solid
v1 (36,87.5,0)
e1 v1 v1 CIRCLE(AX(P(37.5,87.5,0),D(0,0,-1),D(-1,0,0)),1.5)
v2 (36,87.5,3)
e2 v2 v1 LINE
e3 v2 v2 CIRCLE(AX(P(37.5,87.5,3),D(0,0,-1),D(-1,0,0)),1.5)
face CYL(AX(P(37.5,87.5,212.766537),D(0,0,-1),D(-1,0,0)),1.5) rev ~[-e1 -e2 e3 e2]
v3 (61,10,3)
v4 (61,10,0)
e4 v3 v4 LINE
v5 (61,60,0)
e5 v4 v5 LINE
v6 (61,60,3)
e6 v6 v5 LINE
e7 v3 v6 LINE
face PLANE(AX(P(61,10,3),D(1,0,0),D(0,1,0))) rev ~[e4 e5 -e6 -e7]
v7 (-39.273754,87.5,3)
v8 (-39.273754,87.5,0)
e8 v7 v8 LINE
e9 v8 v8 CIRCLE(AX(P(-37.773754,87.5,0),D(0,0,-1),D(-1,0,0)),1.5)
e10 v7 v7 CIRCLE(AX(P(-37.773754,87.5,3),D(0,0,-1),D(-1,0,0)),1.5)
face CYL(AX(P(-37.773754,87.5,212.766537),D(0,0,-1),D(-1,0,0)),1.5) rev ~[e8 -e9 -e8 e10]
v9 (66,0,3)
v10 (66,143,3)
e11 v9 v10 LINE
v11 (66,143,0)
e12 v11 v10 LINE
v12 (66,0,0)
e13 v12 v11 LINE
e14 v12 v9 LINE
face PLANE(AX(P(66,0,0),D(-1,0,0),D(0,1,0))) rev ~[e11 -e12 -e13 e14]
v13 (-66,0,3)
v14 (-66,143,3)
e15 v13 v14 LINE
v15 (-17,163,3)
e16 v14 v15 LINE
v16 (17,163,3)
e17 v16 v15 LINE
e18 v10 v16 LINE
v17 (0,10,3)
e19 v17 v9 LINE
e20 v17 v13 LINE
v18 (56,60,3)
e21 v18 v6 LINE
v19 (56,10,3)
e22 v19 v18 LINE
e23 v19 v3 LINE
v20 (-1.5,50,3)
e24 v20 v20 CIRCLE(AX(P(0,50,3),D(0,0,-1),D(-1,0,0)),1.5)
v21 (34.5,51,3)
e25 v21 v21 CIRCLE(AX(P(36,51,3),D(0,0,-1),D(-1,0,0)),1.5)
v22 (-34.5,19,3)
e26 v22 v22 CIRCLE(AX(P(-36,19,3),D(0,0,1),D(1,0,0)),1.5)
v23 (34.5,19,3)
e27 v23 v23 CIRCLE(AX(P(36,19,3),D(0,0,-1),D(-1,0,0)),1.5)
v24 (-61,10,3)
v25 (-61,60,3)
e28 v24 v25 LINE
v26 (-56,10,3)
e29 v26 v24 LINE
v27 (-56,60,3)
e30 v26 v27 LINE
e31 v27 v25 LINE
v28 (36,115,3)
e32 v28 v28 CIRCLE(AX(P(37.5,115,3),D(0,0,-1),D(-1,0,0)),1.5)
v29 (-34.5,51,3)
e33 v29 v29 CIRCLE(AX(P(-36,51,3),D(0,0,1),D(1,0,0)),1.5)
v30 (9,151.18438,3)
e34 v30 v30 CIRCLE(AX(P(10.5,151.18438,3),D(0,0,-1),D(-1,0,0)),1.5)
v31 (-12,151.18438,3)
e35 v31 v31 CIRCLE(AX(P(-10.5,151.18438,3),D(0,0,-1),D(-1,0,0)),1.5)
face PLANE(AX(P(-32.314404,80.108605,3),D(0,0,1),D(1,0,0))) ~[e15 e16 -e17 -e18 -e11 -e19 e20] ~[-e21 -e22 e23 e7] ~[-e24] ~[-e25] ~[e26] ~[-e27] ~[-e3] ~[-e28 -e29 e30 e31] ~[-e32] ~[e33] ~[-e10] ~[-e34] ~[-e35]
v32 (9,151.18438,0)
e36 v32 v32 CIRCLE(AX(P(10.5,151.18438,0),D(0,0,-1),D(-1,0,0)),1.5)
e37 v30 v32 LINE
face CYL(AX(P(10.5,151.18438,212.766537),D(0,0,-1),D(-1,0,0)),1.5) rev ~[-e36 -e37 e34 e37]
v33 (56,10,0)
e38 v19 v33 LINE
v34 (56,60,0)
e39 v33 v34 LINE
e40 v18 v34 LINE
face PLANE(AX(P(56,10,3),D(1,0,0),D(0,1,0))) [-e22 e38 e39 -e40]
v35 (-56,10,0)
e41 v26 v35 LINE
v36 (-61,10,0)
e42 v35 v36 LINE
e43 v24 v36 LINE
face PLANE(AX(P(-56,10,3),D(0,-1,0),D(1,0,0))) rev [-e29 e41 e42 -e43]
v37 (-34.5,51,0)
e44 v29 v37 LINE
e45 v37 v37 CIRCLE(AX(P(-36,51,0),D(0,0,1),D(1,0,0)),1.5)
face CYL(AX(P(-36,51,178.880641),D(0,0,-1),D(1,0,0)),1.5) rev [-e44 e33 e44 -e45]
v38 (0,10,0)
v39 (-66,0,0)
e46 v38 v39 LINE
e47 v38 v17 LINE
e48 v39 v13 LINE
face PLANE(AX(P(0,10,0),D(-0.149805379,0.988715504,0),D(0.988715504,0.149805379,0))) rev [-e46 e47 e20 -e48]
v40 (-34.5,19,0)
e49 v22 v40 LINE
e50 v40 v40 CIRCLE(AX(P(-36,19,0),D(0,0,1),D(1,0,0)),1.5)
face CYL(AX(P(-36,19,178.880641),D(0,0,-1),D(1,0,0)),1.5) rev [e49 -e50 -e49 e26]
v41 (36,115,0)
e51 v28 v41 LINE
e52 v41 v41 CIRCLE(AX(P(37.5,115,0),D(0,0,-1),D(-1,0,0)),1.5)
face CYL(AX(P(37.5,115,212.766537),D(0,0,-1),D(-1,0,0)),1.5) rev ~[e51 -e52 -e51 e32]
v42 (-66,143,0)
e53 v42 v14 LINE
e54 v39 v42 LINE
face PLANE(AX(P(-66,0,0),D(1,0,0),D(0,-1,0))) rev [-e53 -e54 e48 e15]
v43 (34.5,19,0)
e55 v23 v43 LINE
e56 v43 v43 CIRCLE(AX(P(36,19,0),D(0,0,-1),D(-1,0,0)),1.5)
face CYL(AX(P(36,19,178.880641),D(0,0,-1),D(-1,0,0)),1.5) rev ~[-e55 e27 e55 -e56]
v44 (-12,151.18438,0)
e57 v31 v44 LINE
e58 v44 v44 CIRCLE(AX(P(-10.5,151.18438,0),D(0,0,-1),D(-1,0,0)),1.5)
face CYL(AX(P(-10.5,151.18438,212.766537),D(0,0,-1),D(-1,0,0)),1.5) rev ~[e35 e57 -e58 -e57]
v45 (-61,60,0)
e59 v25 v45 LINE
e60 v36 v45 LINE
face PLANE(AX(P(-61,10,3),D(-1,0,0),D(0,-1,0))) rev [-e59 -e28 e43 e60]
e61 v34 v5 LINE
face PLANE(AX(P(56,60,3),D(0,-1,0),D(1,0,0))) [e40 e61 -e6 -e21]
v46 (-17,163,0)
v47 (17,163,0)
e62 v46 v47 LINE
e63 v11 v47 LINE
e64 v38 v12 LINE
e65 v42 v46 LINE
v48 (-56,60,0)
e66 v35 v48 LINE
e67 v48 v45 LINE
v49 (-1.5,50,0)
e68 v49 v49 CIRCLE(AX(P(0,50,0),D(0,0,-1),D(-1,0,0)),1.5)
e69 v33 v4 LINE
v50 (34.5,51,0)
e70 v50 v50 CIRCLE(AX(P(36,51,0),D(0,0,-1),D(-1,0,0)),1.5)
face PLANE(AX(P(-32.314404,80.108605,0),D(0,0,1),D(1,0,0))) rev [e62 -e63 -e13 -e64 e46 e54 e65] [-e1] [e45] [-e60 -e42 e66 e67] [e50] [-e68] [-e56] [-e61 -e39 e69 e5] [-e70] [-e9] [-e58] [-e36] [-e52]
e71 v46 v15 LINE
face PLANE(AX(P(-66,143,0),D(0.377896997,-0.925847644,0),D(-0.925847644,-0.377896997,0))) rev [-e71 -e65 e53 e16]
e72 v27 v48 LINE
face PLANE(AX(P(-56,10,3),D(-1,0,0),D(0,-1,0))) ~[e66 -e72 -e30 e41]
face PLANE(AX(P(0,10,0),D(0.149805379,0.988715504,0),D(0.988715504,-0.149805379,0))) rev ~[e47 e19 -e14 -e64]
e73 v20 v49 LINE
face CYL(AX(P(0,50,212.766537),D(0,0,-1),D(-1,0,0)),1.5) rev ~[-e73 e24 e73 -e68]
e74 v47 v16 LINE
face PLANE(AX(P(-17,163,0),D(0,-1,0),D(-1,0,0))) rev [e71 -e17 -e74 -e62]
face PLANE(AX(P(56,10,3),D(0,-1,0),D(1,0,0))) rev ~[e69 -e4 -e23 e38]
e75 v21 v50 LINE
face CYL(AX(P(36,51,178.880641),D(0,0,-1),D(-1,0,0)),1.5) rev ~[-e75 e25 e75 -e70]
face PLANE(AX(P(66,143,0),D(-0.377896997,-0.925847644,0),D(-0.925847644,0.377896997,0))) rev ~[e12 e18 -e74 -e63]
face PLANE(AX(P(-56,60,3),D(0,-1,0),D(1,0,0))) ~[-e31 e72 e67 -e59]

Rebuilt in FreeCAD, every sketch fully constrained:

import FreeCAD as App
import Part
import Sketcher
from FreeCAD import Vector
Q = App.Units.Quantity


def add_polygon(sketch, points):
    """Adds a closed chain of lines whose ends are joined by coincident constraints."""
    first, n = sketch.GeometryCount, len(points)
    for a, b in zip(points, points[1:] + points[:1]):
        sketch.addGeometry(Part.LineSegment(App.Vector(*a, 0), App.Vector(*b, 0)), False)
    for i in range(n):
        sketch.addConstraint(Sketcher.Constraint("Coincident", first + i, 2, first + (i + 1) % n, 1))

doc = App.newDocument("Part")
body = doc.addObject("PartDesign::Body", "Body")

sketch1 = body.newObject("Sketcher::SketchObject", "Sketch")
sketch1.AttachmentSupport = (doc.getObject("XY_Plane"), [""])
sketch1.MapMode = "FlatFace"
add_polygon(sketch1, [(0, 10), (66, 0), (66, 143), (17, 163), (0, 163)])
sketch1.addConstraint(Sketcher.Constraint("Vertical", 1))
sketch1.addConstraint(Sketcher.Constraint("Horizontal", 3))
sketch1.addConstraint(Sketcher.Constraint("Vertical", 4))
sketch1.addConstraint(Sketcher.Constraint("PointOnObject", 0, 2, -1))
sketch1.addConstraint(Sketcher.Constraint("PointOnObject", 3, 2, -2))
sketch1.addConstraint(Sketcher.Constraint("DistanceX", 3, 2, 3, 1, Q("17 mm")))
sketch1.addConstraint(Sketcher.Constraint("DistanceY", 1, 1, 1, 2, Q("143 mm")))
sketch1.addConstraint(Sketcher.Constraint("DistanceY", 4, 2, 4, 1, Q("153 mm")))
sketch1.addConstraint(Sketcher.Constraint("DistanceX", -1, 1, 0, 2, Q("66 mm")))
sketch1.addConstraint(Sketcher.Constraint("DistanceY", -1, 1, 2, 2, Q("163 mm")))
pad1 = body.newObject("PartDesign::Pad", "Pad")
pad1.Profile = sketch1
pad1.Length = 3

sketch2 = body.newObject("Sketcher::SketchObject", "Sketch001")
sketch2.AttachmentSupport = (doc.getObject("XY_Plane"), [""])
sketch2.MapMode = "FlatFace"
sketch2.AttachmentOffset = App.Placement(Vector(0, 0, 3), App.Rotation())
add_polygon(sketch2, [(56, 60), (56, 10), (61, 10), (61, 60)])
sketch2.addConstraint(Sketcher.Constraint("Vertical", 0))
sketch2.addConstraint(Sketcher.Constraint("Horizontal", 1))
sketch2.addConstraint(Sketcher.Constraint("Vertical", 2))
sketch2.addConstraint(Sketcher.Constraint("Horizontal", 3))
sketch2.addConstraint(Sketcher.Constraint("DistanceX", 1, 1, 1, 2, Q("5 mm")))
sketch2.addConstraint(Sketcher.Constraint("DistanceY", 0, 2, 0, 1, Q("50 mm")))
sketch2.addConstraint(Sketcher.Constraint("DistanceX", -1, 1, 0, 2, Q("56 mm")))
sketch2.addConstraint(Sketcher.Constraint("DistanceY", -1, 1, 0, 2, Q("10 mm")))
pocket1 = body.newObject("PartDesign::Pocket", "Pocket")
pocket1.Profile = sketch2
pocket1.Length = 3

sketch3 = body.newObject("Sketcher::SketchObject", "Sketch002")
sketch3.AttachmentSupport = (doc.getObject("XY_Plane"), [""])
sketch3.MapMode = "FlatFace"
sketch3.AttachmentOffset = App.Placement(Vector(0, 0, 3), App.Rotation())
sketch3.addGeometry(Part.Circle(Vector(36, 19, 0), Vector(0, 0, 1), 1.5), False)
sketch3.addGeometry(Part.Circle(Vector(36, 51, 0), Vector(0, 0, 1), 1.5), False)
sketch3.addConstraint(Sketcher.Constraint("Equal", 0, 1))
sketch3.addConstraint(Sketcher.Constraint("Vertical", 0, 3, 1, 3))
sketch3.addConstraint(Sketcher.Constraint("Diameter", 0, Q("3 mm")))
sketch3.addConstraint(Sketcher.Constraint("DistanceX", -1, 1, 0, 3, Q("36 mm")))
sketch3.addConstraint(Sketcher.Constraint("DistanceY", -1, 1, 0, 3, Q("19 mm")))
sketch3.addConstraint(Sketcher.Constraint("DistanceY", -1, 1, 1, 3, Q("51 mm")))
doc.recompute()
hole = body.newObject("PartDesign::Hole", "Hole")
hole.Profile = sketch3
hole.ThreadType = "None"
hole.Diameter = 3
hole.DepthType = "ThroughAll"
body2 = doc.addObject("PartDesign::Body", "Body001")
doc.recompute()

body2.BaseFeature = body
doc.recompute()

mirroring = doc.addObject("Part::Mirroring", "Mirroring")
mirroring.Source = body
mirroring.Base = Vector(0, 0, 0)
mirroring.Normal = Vector(1, 0, 0)
body3 = doc.addObject("PartDesign::Body", "Body002")
body3.BaseFeature = mirroring
boolean = body2.newObject("PartDesign::Boolean", "Boolean")
boolean.Type = "Fuse"
boolean.addObjects([body3])
doc.recompute()

sketch4 = body2.newObject("Sketcher::SketchObject", "Sketch003")
sketch4.AttachmentSupport = (doc.getObject("XY_Plane001"), [""])
sketch4.MapMode = "FlatFace"
sketch4.AttachmentOffset = App.Placement(Vector(0, 0, 3), App.Rotation())
sketch4.addGeometry(Part.Circle(Vector(0, 50, 0), Vector(0, 0, 1), 1.5), False)
sketch4.addConstraint(Sketcher.Constraint("PointOnObject", 0, 3, -2))
sketch4.addConstraint(Sketcher.Constraint("Diameter", 0, Q("3 mm")))
sketch4.addConstraint(Sketcher.Constraint("DistanceY", -1, 1, 0, 3, Q("50 mm")))
doc.recompute()
hole2 = body2.newObject("PartDesign::Hole", "Hole001")
hole2.Profile = sketch4
hole2.ThreadType = "None"
hole2.Diameter = 3
hole2.DepthType = "ThroughAll"

sketch5 = body2.newObject("Sketcher::SketchObject", "Sketch004")
sketch5.AttachmentSupport = (doc.getObject("XY_Plane001"), [""])
sketch5.MapMode = "FlatFace"
sketch5.AttachmentOffset = App.Placement(Vector(0, 0, 3), App.Rotation())
sketch5.addGeometry(Part.Circle(Vector(-37.773754, 87.5, 0), Vector(0, 0, 1), 1.5), False)
sketch5.addGeometry(Part.Circle(Vector(37.5, 87.5, 0), Vector(0, 0, 1), 1.5), False)
sketch5.addConstraint(Sketcher.Constraint("Equal", 0, 1))
sketch5.addConstraint(Sketcher.Constraint("Horizontal", 0, 3, 1, 3))
sketch5.addConstraint(Sketcher.Constraint("Diameter", 0, Q("3 mm")))
sketch5.addConstraint(Sketcher.Constraint("DistanceY", -1, 1, 0, 3, Q("87.5 mm")))
sketch5.addConstraint(Sketcher.Constraint("DistanceX", -1, 1, 1, 3, Q("37.5 mm")))
sketch5.addConstraint(Sketcher.Constraint("DistanceX", 0, 3, -1, 1, Q("37.773754 mm")))
doc.recompute()
hole3 = body2.newObject("PartDesign::Hole", "Hole002")
hole3.Profile = sketch5
hole3.ThreadType = "None"
hole3.Diameter = 3
hole3.DepthType = "ThroughAll"

sketch6 = body2.newObject("Sketcher::SketchObject", "Sketch005")
sketch6.AttachmentSupport = (doc.getObject("XY_Plane001"), [""])
sketch6.MapMode = "FlatFace"
sketch6.AttachmentOffset = App.Placement(Vector(0, 0, 3), App.Rotation())
sketch6.addGeometry(Part.Circle(Vector(37.5, 115, 0), Vector(0, 0, 1), 1.5), False)
sketch6.addConstraint(Sketcher.Constraint("Diameter", 0, Q("3 mm")))
sketch6.addConstraint(Sketcher.Constraint("DistanceY", -1, 1, 0, 3, Q("115 mm")))
sketch6.addConstraint(Sketcher.Constraint("DistanceX", -1, 1, 0, 3, Q("37.5 mm")))
doc.recompute()
hole4 = body2.newObject("PartDesign::Hole", "Hole003")
hole4.Profile = sketch6
hole4.ThreadType = "None"
hole4.Diameter = 3
hole4.DepthType = "ThroughAll"

sketch7 = body2.newObject("Sketcher::SketchObject", "Sketch006")
sketch7.AttachmentSupport = (doc.getObject("XY_Plane001"), [""])
sketch7.MapMode = "FlatFace"
sketch7.AttachmentOffset = App.Placement(Vector(0, 0, 3), App.Rotation())
sketch7.addGeometry(Part.Circle(Vector(-10.5, 151.18438, 0), Vector(0, 0, 1), 1.5), False)
sketch7.addGeometry(Part.Circle(Vector(10.5, 151.18438, 0), Vector(0, 0, 1), 1.5), False)
sketch7.addConstraint(Sketcher.Constraint("Equal", 0, 1))
sketch7.addConstraint(Sketcher.Constraint("Symmetric", 0, 3, 1, 3, -2))
sketch7.addConstraint(Sketcher.Constraint("Diameter", 0, Q("3 mm")))
sketch7.addConstraint(Sketcher.Constraint("DistanceX", 0, 3, 1, 3, Q("21 mm")))
sketch7.addConstraint(Sketcher.Constraint("DistanceY", -1, 1, 0, 3, Q("151.18438 mm")))
doc.recompute()
hole5 = body2.newObject("PartDesign::Hole", "Hole004")
hole5.Profile = sketch7
hole5.ThreadType = "None"
hole5.Diameter = 3
hole5.DepthType = "ThroughAll"
mirroring.Visibility = False

doc.recompute()
